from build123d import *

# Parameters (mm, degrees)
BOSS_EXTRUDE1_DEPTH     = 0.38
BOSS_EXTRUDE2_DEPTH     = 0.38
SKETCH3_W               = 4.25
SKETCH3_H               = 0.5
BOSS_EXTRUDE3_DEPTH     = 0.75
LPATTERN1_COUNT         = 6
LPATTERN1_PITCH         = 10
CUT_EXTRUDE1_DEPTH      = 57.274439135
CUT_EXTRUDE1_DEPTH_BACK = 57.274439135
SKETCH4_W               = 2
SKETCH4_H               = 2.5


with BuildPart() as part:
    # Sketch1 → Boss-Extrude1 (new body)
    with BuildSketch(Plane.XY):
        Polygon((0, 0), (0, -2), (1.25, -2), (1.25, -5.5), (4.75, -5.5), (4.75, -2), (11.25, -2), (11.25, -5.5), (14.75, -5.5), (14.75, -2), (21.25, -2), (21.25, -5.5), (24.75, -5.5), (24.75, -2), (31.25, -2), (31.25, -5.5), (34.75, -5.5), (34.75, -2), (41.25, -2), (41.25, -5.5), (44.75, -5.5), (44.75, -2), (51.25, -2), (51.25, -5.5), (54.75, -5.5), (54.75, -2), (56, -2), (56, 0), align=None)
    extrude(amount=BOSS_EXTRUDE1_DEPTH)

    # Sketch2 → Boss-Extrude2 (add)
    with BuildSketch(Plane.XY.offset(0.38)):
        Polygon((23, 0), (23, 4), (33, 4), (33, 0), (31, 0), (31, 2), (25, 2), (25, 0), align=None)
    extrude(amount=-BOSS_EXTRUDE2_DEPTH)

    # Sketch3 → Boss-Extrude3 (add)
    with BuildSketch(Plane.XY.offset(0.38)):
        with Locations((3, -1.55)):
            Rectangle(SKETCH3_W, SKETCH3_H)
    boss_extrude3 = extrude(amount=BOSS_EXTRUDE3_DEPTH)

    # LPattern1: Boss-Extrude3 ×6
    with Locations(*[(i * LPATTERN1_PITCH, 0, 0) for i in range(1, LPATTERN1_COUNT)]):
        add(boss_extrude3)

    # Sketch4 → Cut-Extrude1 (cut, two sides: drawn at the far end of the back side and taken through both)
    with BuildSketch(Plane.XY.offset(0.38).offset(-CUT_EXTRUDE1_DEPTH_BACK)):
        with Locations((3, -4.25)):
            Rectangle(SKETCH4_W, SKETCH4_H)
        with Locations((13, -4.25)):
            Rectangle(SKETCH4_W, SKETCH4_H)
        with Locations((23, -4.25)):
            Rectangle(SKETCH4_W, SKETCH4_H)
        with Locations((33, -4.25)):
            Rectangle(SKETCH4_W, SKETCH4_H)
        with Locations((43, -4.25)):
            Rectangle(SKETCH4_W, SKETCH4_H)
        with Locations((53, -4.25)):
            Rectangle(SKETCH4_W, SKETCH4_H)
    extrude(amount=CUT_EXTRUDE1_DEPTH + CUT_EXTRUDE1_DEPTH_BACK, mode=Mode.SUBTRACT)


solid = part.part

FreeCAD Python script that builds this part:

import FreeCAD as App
import Part
import Sketcher
from FreeCAD import Vector
Q = App.Units.Quantity

doc = App.newDocument("Part")
body = doc.addObject("PartDesign::Body", "Body")

sketch1 = body.newObject("Sketcher::SketchObject", "Sketch")
sketch1.AttachmentSupport = (doc.getObject("XY_Plane"), [""])
sketch1.MapMode = "FlatFace"
sketch1.addGeometry(Part.LineSegment(Vector(0, 0, 0), Vector(0, -2, 0)), False)
sketch1.addGeometry(Part.LineSegment(Vector(0, -2, 0), Vector(1.2, -2, 0)), False)
sketch1.addGeometry(Part.LineSegment(Vector(1.2, -2, 0), Vector(1.2, -5.5, 0)), False)
sketch1.addGeometry(Part.LineSegment(Vector(1.2, -5.5, 0), Vector(4.8, -5.5, 0)), False)
sketch1.addGeometry(Part.LineSegment(Vector(4.8, -5.5, 0), Vector(4.8, -2, 0)), False)
sketch1.addGeometry(Part.LineSegment(Vector(4.8, -2, 0), Vector(11.2, -2, 0)), False)
sketch1.addGeometry(Part.LineSegment(Vector(11.2, -2, 0), Vector(11.2, -5.5, 0)), False)
sketch1.addGeometry(Part.LineSegment(Vector(11.2, -5.5, 0), Vector(14.8, -5.5, 0)), False)
sketch1.addGeometry(Part.LineSegment(Vector(14.8, -5.5, 0), Vector(14.8, -2, 0)), False)
sketch1.addGeometry(Part.LineSegment(Vector(14.8, -2, 0), Vector(21.2, -2, 0)), False)
sketch1.addGeometry(Part.LineSegment(Vector(21.2, -2, 0), Vector(21.2, -5.5, 0)), False)
sketch1.addGeometry(Part.LineSegment(Vector(21.2, -5.5, 0), Vector(24.8, -5.5, 0)), False)
sketch1.addGeometry(Part.LineSegment(Vector(24.8, -5.5, 0), Vector(24.8, -2, 0)), False)
sketch1.addGeometry(Part.LineSegment(Vector(24.8, -2, 0), Vector(31.2, -2, 0)), False)
sketch1.addGeometry(Part.LineSegment(Vector(31.2, -2, 0), Vector(31.2, -5.5, 0)), False)
sketch1.addGeometry(Part.LineSegment(Vector(31.2, -5.5, 0), Vector(34.8, -5.5, 0)), False)
sketch1.addGeometry(Part.LineSegment(Vector(34.8, -5.5, 0), Vector(34.8, -2, 0)), False)
sketch1.addGeometry(Part.LineSegment(Vector(34.8, -2, 0), Vector(41.2, -2, 0)), False)
sketch1.addGeometry(Part.LineSegment(Vector(41.2, -2, 0), Vector(41.2, -5.5, 0)), False)
sketch1.addGeometry(Part.LineSegment(Vector(41.2, -5.5, 0), Vector(44.8, -5.5, 0)), False)
sketch1.addGeometry(Part.LineSegment(Vector(44.8, -5.5, 0), Vector(44.8, -2, 0)), False)
sketch1.addGeometry(Part.LineSegment(Vector(44.8, -2, 0), Vector(51.2, -2, 0)), False)
sketch1.addGeometry(Part.LineSegment(Vector(51.2, -2, 0), Vector(51.2, -5.5, 0)), False)
sketch1.addGeometry(Part.LineSegment(Vector(51.2, -5.5, 0), Vector(54.8, -5.5, 0)), False)
sketch1.addGeometry(Part.LineSegment(Vector(54.8, -5.5, 0), Vector(54.8, -2, 0)), False)
sketch1.addGeometry(Part.LineSegment(Vector(54.8, -2, 0), Vector(56, -2, 0)), False)
sketch1.addGeometry(Part.LineSegment(Vector(56, -2, 0), Vector(56, 0, 0)), False)
sketch1.addGeometry(Part.LineSegment(Vector(56, 0, 0), Vector(0, 0, 0)), False)
sketch1.addConstraint(Sketcher.Constraint("Coincident", 0, 2, 1, 1))
sketch1.addConstraint(Sketcher.Constraint("Coincident", 1, 2, 2, 1))
sketch1.addConstraint(Sketcher.Constraint("Coincident", 2, 2, 3, 1))
sketch1.addConstraint(Sketcher.Constraint("Coincident", 3, 2, 4, 1))
sketch1.addConstraint(Sketcher.Constraint("Coincident", 4, 2, 5, 1))
sketch1.addConstraint(Sketcher.Constraint("Coincident", 5, 2, 6, 1))
sketch1.addConstraint(Sketcher.Constraint("Coincident", 6, 2, 7, 1))
sketch1.addConstraint(Sketcher.Constraint("Coincident", 7, 2, 8, 1))
sketch1.addConstraint(Sketcher.Constraint("Coincident", 8, 2, 9, 1))
sketch1.addConstraint(Sketcher.Constraint("Coincident", 9, 2, 10, 1))
sketch1.addConstraint(Sketcher.Constraint("Coincident", 10, 2, 11, 1))
sketch1.addConstraint(Sketcher.Constraint("Coincident", 11, 2, 12, 1))
sketch1.addConstraint(Sketcher.Constraint("Coincident", 12, 2, 13, 1))
sketch1.addConstraint(Sketcher.Constraint("Coincident", 13, 2, 14, 1))
sketch1.addConstraint(Sketcher.Constraint("Coincident", 14, 2, 15, 1))
sketch1.addConstraint(Sketcher.Constraint("Coincident", 15, 2, 16, 1))
sketch1.addConstraint(Sketcher.Constraint("Coincident", 16, 2, 17, 1))
sketch1.addConstraint(Sketcher.Constraint("Coincident", 17, 2, 18, 1))
sketch1.addConstraint(Sketcher.Constraint("Coincident", 18, 2, 19, 1))
sketch1.addConstraint(Sketcher.Constraint("Coincident", 19, 2, 20, 1))
sketch1.addConstraint(Sketcher.Constraint("Coincident", 20, 2, 21, 1))
sketch1.addConstraint(Sketcher.Constraint("Coincident", 21, 2, 22, 1))
sketch1.addConstraint(Sketcher.Constraint("Coincident", 22, 2, 23, 1))
sketch1.addConstraint(Sketcher.Constraint("Coincident", 23, 2, 24, 1))
sketch1.addConstraint(Sketcher.Constraint("Coincident", 24, 2, 25, 1))
sketch1.addConstraint(Sketcher.Constraint("Coincident", 25, 2, 26, 1))
sketch1.addConstraint(Sketcher.Constraint("Coincident", 26, 2, 27, 1))
sketch1.addConstraint(Sketcher.Constraint("Coincident", 27, 2, 0, 1))
sketch1.addConstraint(Sketcher.Constraint("Vertical", 0))
sketch1.addConstraint(Sketcher.Constraint("Horizontal", 1))
sketch1.addConstraint(Sketcher.Constraint("Vertical", 2))
sketch1.addConstraint(Sketcher.Constraint("Horizontal", 3))
sketch1.addConstraint(Sketcher.Constraint("Vertical", 4))
sketch1.addConstraint(Sketcher.Constraint("Horizontal", 5))
sketch1.addConstraint(Sketcher.Constraint("Vertical", 6))
sketch1.addConstraint(Sketcher.Constraint("Horizontal", 7))
sketch1.addConstraint(Sketcher.Constraint("Vertical", 8))
sketch1.addConstraint(Sketcher.Constraint("Horizontal", 9))
sketch1.addConstraint(Sketcher.Constraint("Vertical", 10))
sketch1.addConstraint(Sketcher.Constraint("Horizontal", 11))
sketch1.addConstraint(Sketcher.Constraint("Vertical", 12))
sketch1.addConstraint(Sketcher.Constraint("Horizontal", 13))
sketch1.addConstraint(Sketcher.Constraint("Vertical", 14))
sketch1.addConstraint(Sketcher.Constraint("Horizontal", 15))
sketch1.addConstraint(Sketcher.Constraint("Vertical", 16))
sketch1.addConstraint(Sketcher.Constraint("Horizontal", 17))
sketch1.addConstraint(Sketcher.Constraint("Vertical", 18))
sketch1.addConstraint(Sketcher.Constraint("Horizontal", 19))
sketch1.addConstraint(Sketcher.Constraint("Vertical", 20))
sketch1.addConstraint(Sketcher.Constraint("Horizontal", 21))
sketch1.addConstraint(Sketcher.Constraint("Vertical", 22))
sketch1.addConstraint(Sketcher.Constraint("Horizontal", 23))
sketch1.addConstraint(Sketcher.Constraint("Vertical", 24))
sketch1.addConstraint(Sketcher.Constraint("Horizontal", 25))
sketch1.addConstraint(Sketcher.Constraint("Vertical", 26))
sketch1.addConstraint(Sketcher.Constraint("Horizontal", 27))
sketch1.addConstraint(Sketcher.Constraint("Coincident", 27, 2, -1, 1))
sketch1.addConstraint(Sketcher.Constraint("Horizontal", 1, 2, 4, 2))
sketch1.addConstraint(Sketcher.Constraint("Horizontal", 3, 2, 6, 2))
sketch1.addConstraint(Sketcher.Constraint("Horizontal", 5, 2, 8, 2))
sketch1.addConstraint(Sketcher.Constraint("Horizontal", 7, 2, 10, 2))
sketch1.addConstraint(Sketcher.Constraint("Horizontal", 9, 2, 12, 2))
sketch1.addConstraint(Sketcher.Constraint("Horizontal", 11, 2, 14, 2))
sketch1.addConstraint(Sketcher.Constraint("Horizontal", 13, 2, 16, 2))
sketch1.addConstraint(Sketcher.Constraint("Horizontal", 15, 2, 18, 2))
sketch1.addConstraint(Sketcher.Constraint("Horizontal", 17, 2, 20, 2))
sketch1.addConstraint(Sketcher.Constraint("Horizontal", 19, 2, 22, 2))
sketch1.addConstraint(Sketcher.Constraint("Horizontal", 21, 2, 24, 2))
sketch1.addConstraint(Sketcher.Constraint("Equal", 3, 7))
sketch1.addConstraint(Sketcher.Constraint("Equal", 5, 9))
sketch1.addConstraint(Sketcher.Constraint("Equal", 7, 11))
sketch1.addConstraint(Sketcher.Constraint("Equal", 9, 13))
sketch1.addConstraint(Sketcher.Constraint("Equal", 11, 15))
sketch1.addConstraint(Sketcher.Constraint("Equal", 13, 17))
sketch1.addConstraint(Sketcher.Constraint("Equal", 15, 19))
sketch1.addConstraint(Sketcher.Constraint("Equal", 17, 21))
sketch1.addConstraint(Sketcher.Constraint("Equal", 19, 23))
sketch1.addConstraint(Sketcher.Constraint("Equal", 1, 25))
sketch1.addConstraint(Sketcher.Constraint("Equal", 23, 2))
sketch1.addConstraint(Sketcher.Constraint("DistanceX", 27, 2, 27, 1, Q("56 mm")))
sketch1.addConstraint(Sketcher.Constraint("DistanceY", 0, 2, 0, 1, Q("2 mm")))
sketch1.addConstraint(Sketcher.Constraint("DistanceX", 3, 1, 3, 2, Q("3.5 mm")))
sketch1.addConstraint(Sketcher.Constraint("DistanceX", 5, 1, 5, 2, Q("6.5 mm")))
pad1 = body.newObject("PartDesign::Pad", "Pad")
pad1.Profile = sketch1
pad1.Length = 0.38

sketch2 = body.newObject("Sketcher::SketchObject", "Sketch001")
sketch2.AttachmentSupport = (doc.getObject("XY_Plane"), [""])
sketch2.MapMode = "FlatFace"
sketch2.AttachmentOffset = App.Placement(Vector(0, 0, 0.38), App.Rotation())
sketch2.addGeometry(Part.LineSegment(Vector(23, 4, 0), Vector(23, 0, 0)), False)
sketch2.addGeometry(Part.LineSegment(Vector(23, 0, 0), Vector(25, 0, 0)), False)
sketch2.addGeometry(Part.LineSegment(Vector(25, 0, 0), Vector(25, 2, 0)), False)
sketch2.addGeometry(Part.LineSegment(Vector(25, 2, 0), Vector(31, 2, 0)), False)
sketch2.addGeometry(Part.LineSegment(Vector(31, 2, 0), Vector(31, 0, 0)), False)
sketch2.addGeometry(Part.LineSegment(Vector(31, 0, 0), Vector(33, 0, 0)), False)
sketch2.addGeometry(Part.LineSegment(Vector(33, 0, 0), Vector(33, 4, 0)), False)
sketch2.addGeometry(Part.LineSegment(Vector(33, 4, 0), Vector(23, 4, 0)), False)
sketch2.addConstraint(Sketcher.Constraint("Coincident", 0, 2, 1, 1))
sketch2.addConstraint(Sketcher.Constraint("Coincident", 1, 2, 2, 1))
sketch2.addConstraint(Sketcher.Constraint("Coincident", 2, 2, 3, 1))
sketch2.addConstraint(Sketcher.Constraint("Coincident", 3, 2, 4, 1))
sketch2.addConstraint(Sketcher.Constraint("Coincident", 4, 2, 5, 1))
sketch2.addConstraint(Sketcher.Constraint("Coincident", 5, 2, 6, 1))
sketch2.addConstraint(Sketcher.Constraint("Coincident", 6, 2, 7, 1))
sketch2.addConstraint(Sketcher.Constraint("Coincident", 7, 2, 0, 1))
sketch2.addConstraint(Sketcher.Constraint("Vertical", 0))
sketch2.addConstraint(Sketcher.Constraint("Horizontal", 1))
sketch2.addConstraint(Sketcher.Constraint("Vertical", 2))
sketch2.addConstraint(Sketcher.Constraint("Horizontal", 3))
sketch2.addConstraint(Sketcher.Constraint("Vertical", 4))
sketch2.addConstraint(Sketcher.Constraint("Horizontal", 5))
sketch2.addConstraint(Sketcher.Constraint("Vertical", 6))
sketch2.addConstraint(Sketcher.Constraint("Horizontal", 7))
sketch2.addConstraint(Sketcher.Constraint("PointOnObject", 0, 2, -1))
sketch2.addConstraint(Sketcher.Constraint("PointOnObject", 4, 2, -1))
sketch2.addConstraint(Sketcher.Constraint("Equal", 1, 5))
sketch2.addConstraint(Sketcher.Constraint("Equal", 5, 2))
sketch2.addConstraint(Sketcher.Constraint("DistanceX", 1, 1, 1, 2, Q("2 mm")))
sketch2.addConstraint(Sketcher.Constraint("DistanceX", 3, 1, 3, 2, Q("6 mm")))
sketch2.addConstraint(Sketcher.Constraint("DistanceY", 0, 2, 0, 1, Q("4 mm")))
sketch2.addConstraint(Sketcher.Constraint("DistanceX", -1, 1, 0, 2, Q("23 mm")))
pad2 = body.newObject("PartDesign::Pad", "Pad001")
pad2.Profile = sketch2
pad2.Length = 0.38
pad2.Reversed = True

sketch3 = body.newObject("Sketcher::SketchObject", "Sketch002")
sketch3.AttachmentSupport = (doc.getObject("XY_Plane"), [""])
sketch3.MapMode = "FlatFace"
sketch3.AttachmentOffset = App.Placement(Vector(0, 0, 0.38), App.Rotation())
sketch3.addGeometry(Part.LineSegment(Vector(0.9, -1.3, 0), Vector(0.9, -1.8, 0)), False)
sketch3.addGeometry(Part.LineSegment(Vector(0.9, -1.8, 0), Vector(5.1, -1.8, 0)), False)
sketch3.addGeometry(Part.LineSegment(Vector(5.1, -1.8, 0), Vector(5.1, -1.3, 0)), False)
sketch3.addGeometry(Part.LineSegment(Vector(5.1, -1.3, 0), Vector(0.9, -1.3, 0)), False)
sketch3.addConstraint(Sketcher.Constraint("Coincident", 0, 2, 1, 1))
sketch3.addConstraint(Sketcher.Constraint("Coincident", 1, 2, 2, 1))
sketch3.addConstraint(Sketcher.Constraint("Coincident", 2, 2, 3, 1))
sketch3.addConstraint(Sketcher.Constraint("Coincident", 3, 2, 0, 1))
sketch3.addConstraint(Sketcher.Constraint("Vertical", 0))
sketch3.addConstraint(Sketcher.Constraint("Horizontal", 1))
sketch3.addConstraint(Sketcher.Constraint("Vertical", 2))
sketch3.addConstraint(Sketcher.Constraint("Horizontal", 3))
sketch3.addConstraint(Sketcher.Constraint("DistanceY", 0, 2, 0, 1, Q("0.5 mm")))
sketch3.addConstraint(Sketcher.Constraint("DistanceX", 1, 1, 1, 2, Q("4.25 mm")))
sketch3.addConstraint(Sketcher.Constraint("DistanceY", 0, 2, -1, 1, Q("1.8 mm")))
sketch3.addConstraint(Sketcher.Constraint("DistanceX", -1, 1, 0, 2, Q("0.875 mm")))
pad3 = body.newObject("PartDesign::Pad", "Pad002")
pad3.Profile = sketch3
pad3.Length = 0.75
doc.recompute()

linearpattern = body.newObject("PartDesign::LinearPattern", "LinearPattern")
linearpattern.Originals = [pad3]
linearpattern.Direction = (doc.getObject("X_Axis"), [""])
linearpattern.Mode = "offset"
linearpattern.Offset = 10
linearpattern.Occurrences = 6
body.Tip = linearpattern

sketch4 = body.newObject("Sketcher::SketchObject", "Sketch003")
sketch4.AttachmentSupport = (doc.getObject("XY_Plane"), [""])
sketch4.MapMode = "FlatFace"
sketch4.AttachmentOffset = App.Placement(Vector(0, 0, 0.38), App.Rotation())
sketch4.addGeometry(Part.LineSegment(Vector(2, -3, 0), Vector(2, -5.5, 0)), False)
sketch4.addGeometry(Part.LineSegment(Vector(2, -5.5, 0), Vector(4, -5.5, 0)), False)
sketch4.addGeometry(Part.LineSegment(Vector(4, -5.5, 0), Vector(4, -3, 0)), False)
sketch4.addGeometry(Part.LineSegment(Vector(4, -3, 0), Vector(2, -3, 0)), False)
sketch4.addGeometry(Part.LineSegment(Vector(12, -3, 0), Vector(12, -5.5, 0)), False)
sketch4.addGeometry(Part.LineSegment(Vector(12, -5.5, 0), Vector(14, -5.5, 0)), False)
sketch4.addGeometry(Part.LineSegment(Vector(14, -5.5, 0), Vector(14, -3, 0)), False)
sketch4.addGeometry(Part.LineSegment(Vector(14, -3, 0), Vector(12, -3, 0)), False)
sketch4.addGeometry(Part.LineSegment(Vector(22, -3, 0), Vector(22, -5.5, 0)), False)
sketch4.addGeometry(Part.LineSegment(Vector(22, -5.5, 0), Vector(24, -5.5, 0)), False)
sketch4.addGeometry(Part.LineSegment(Vector(24, -5.5, 0), Vector(24, -3, 0)), False)
sketch4.addGeometry(Part.LineSegment(Vector(24, -3, 0), Vector(22, -3, 0)), False)
sketch4.addGeometry(Part.LineSegment(Vector(32, -3, 0), Vector(32, -5.5, 0)), False)
sketch4.addGeometry(Part.LineSegment(Vector(32, -5.5, 0), Vector(34, -5.5, 0)), False)
sketch4.addGeometry(Part.LineSegment(Vector(34, -5.5, 0), Vector(34, -3, 0)), False)
sketch4.addGeometry(Part.LineSegment(Vector(34, -3, 0), Vector(32, -3, 0)), False)
sketch4.addGeometry(Part.LineSegment(Vector(42, -3, 0), Vector(42, -5.5, 0)), False)
sketch4.addGeometry(Part.LineSegment(Vector(42, -5.5, 0), Vector(44, -5.5, 0)), False)
sketch4.addGeometry(Part.LineSegment(Vector(44, -5.5, 0), Vector(44, -3, 0)), False)
sketch4.addGeometry(Part.LineSegment(Vector(44, -3, 0), Vector(42, -3, 0)), False)
sketch4.addGeometry(Part.LineSegment(Vector(52, -3, 0), Vector(52, -5.5, 0)), False)
sketch4.addGeometry(Part.LineSegment(Vector(52, -5.5, 0), Vector(54, -5.5, 0)), False)
sketch4.addGeometry(Part.LineSegment(Vector(54, -5.5, 0), Vector(54, -3, 0)), False)
sketch4.addGeometry(Part.LineSegment(Vector(54, -3, 0), Vector(52, -3, 0)), False)
sketch4.addConstraint(Sketcher.Constraint("Coincident", 0, 2, 1, 1))
sketch4.addConstraint(Sketcher.Constraint("Coincident", 1, 2, 2, 1))
sketch4.addConstraint(Sketcher.Constraint("Coincident", 2, 2, 3, 1))
sketch4.addConstraint(Sketcher.Constraint("Coincident", 3, 2, 0, 1))
sketch4.addConstraint(Sketcher.Constraint("Coincident", 4, 2, 5, 1))
sketch4.addConstraint(Sketcher.Constraint("Coincident", 5, 2, 6, 1))
sketch4.addConstraint(Sketcher.Constraint("Coincident", 6, 2, 7, 1))
sketch4.addConstraint(Sketcher.Constraint("Coincident", 7, 2, 4, 1))
sketch4.addConstraint(Sketcher.Constraint("Coincident", 8, 2, 9, 1))
sketch4.addConstraint(Sketcher.Constraint("Coincident", 9, 2, 10, 1))
sketch4.addConstraint(Sketcher.Constraint("Coincident", 10, 2, 11, 1))
sketch4.addConstraint(Sketcher.Constraint("Coincident", 11, 2, 8, 1))
sketch4.addConstraint(Sketcher.Constraint("Coincident", 12, 2, 13, 1))
sketch4.addConstraint(Sketcher.Constraint("Coincident", 13, 2, 14, 1))
sketch4.addConstraint(Sketcher.Constraint("Coincident", 14, 2, 15, 1))
sketch4.addConstraint(Sketcher.Constraint("Coincident", 15, 2, 12, 1))
sketch4.addConstraint(Sketcher.Constraint("Coincident", 16, 2, 17, 1))
sketch4.addConstraint(Sketcher.Constraint("Coincident", 17, 2, 18, 1))
sketch4.addConstraint(Sketcher.Constraint("Coincident", 18, 2, 19, 1))
sketch4.addConstraint(Sketcher.Constraint("Coincident", 19, 2, 16, 1))
sketch4.addConstraint(Sketcher.Constraint("Coincident", 20, 2, 21, 1))
sketch4.addConstraint(Sketcher.Constraint("Coincident", 21, 2, 22, 1))
sketch4.addConstraint(Sketcher.Constraint("Coincident", 22, 2, 23, 1))
sketch4.addConstraint(Sketcher.Constraint("Coincident", 23, 2, 20, 1))
sketch4.addConstraint(Sketcher.Constraint("Vertical", 0))
sketch4.addConstraint(Sketcher.Constraint("Horizontal", 1))
sketch4.addConstraint(Sketcher.Constraint("Vertical", 2))
sketch4.addConstraint(Sketcher.Constraint("Horizontal", 3))
sketch4.addConstraint(Sketcher.Constraint("Vertical", 4))
sketch4.addConstraint(Sketcher.Constraint("Horizontal", 5))
sketch4.addConstraint(Sketcher.Constraint("Vertical", 6))
sketch4.addConstraint(Sketcher.Constraint("Horizontal", 7))
sketch4.addConstraint(Sketcher.Constraint("Vertical", 8))
sketch4.addConstraint(Sketcher.Constraint("Horizontal", 9))
sketch4.addConstraint(Sketcher.Constraint("Vertical", 10))
sketch4.addConstraint(Sketcher.Constraint("Horizontal", 11))
sketch4.addConstraint(Sketcher.Constraint("Vertical", 12))
sketch4.addConstraint(Sketcher.Constraint("Horizontal", 13))
sketch4.addConstraint(Sketcher.Constraint("Vertical", 14))
sketch4.addConstraint(Sketcher.Constraint("Horizontal", 15))
sketch4.addConstraint(Sketcher.Constraint("Vertical", 16))
sketch4.addConstraint(Sketcher.Constraint("Horizontal", 17))
sketch4.addConstraint(Sketcher.Constraint("Vertical", 18))
sketch4.addConstraint(Sketcher.Constraint("Horizontal", 19))
sketch4.addConstraint(Sketcher.Constraint("Vertical", 20))
sketch4.addConstraint(Sketcher.Constraint("Horizontal", 21))
sketch4.addConstraint(Sketcher.Constraint("Vertical", 22))
sketch4.addConstraint(Sketcher.Constraint("Horizontal", 23))
sketch4.addConstraint(Sketcher.Constraint("Horizontal", 1, 2, 4, 2))
sketch4.addConstraint(Sketcher.Constraint("Horizontal", 3, 2, 6, 2))
sketch4.addConstraint(Sketcher.Constraint("Horizontal", 5, 2, 8, 2))
sketch4.addConstraint(Sketcher.Constraint("Horizontal", 7, 2, 10, 2))
sketch4.addConstraint(Sketcher.Constraint("Horizontal", 9, 2, 12, 2))
sketch4.addConstraint(Sketcher.Constraint("Horizontal", 11, 2, 14, 2))
sketch4.addConstraint(Sketcher.Constraint("Horizontal", 13, 2, 16, 2))
sketch4.addConstraint(Sketcher.Constraint("Horizontal", 15, 2, 18, 2))
sketch4.addConstraint(Sketcher.Constraint("Horizontal", 17, 2, 20, 2))
sketch4.addConstraint(Sketcher.Constraint("Horizontal", 19, 2, 22, 2))
sketch4.addConstraint(Sketcher.Constraint("Equal", 3, 5))
sketch4.addConstraint(Sketcher.Constraint("Equal", 7, 9))
sketch4.addConstraint(Sketcher.Constraint("Equal", 11, 13))
sketch4.addConstraint(Sketcher.Constraint("Equal", 15, 17))
sketch4.addConstraint(Sketcher.Constraint("Equal", 19, 21))
sketch4.addConstraint(Sketcher.Constraint("DistanceX", 1, 1, 1, 2, Q("2 mm")))
sketch4.addConstraint(Sketcher.Constraint("DistanceY", 0, 2, 0, 1, Q("2.5 mm")))
sketch4.addConstraint(Sketcher.Constraint("DistanceX", -1, 1, 0, 2, Q("2 mm")))
sketch4.addConstraint(Sketcher.Constraint("DistanceY", 2, 2, -1, 1, Q("3 mm")))
sketch4.addConstraint(Sketcher.Constraint("DistanceX", -1, 1, 4, 2, Q("12 mm")))
sketch4.addConstraint(Sketcher.Constraint("DistanceX", -1, 1, 8, 2, Q("22 mm")))
sketch4.addConstraint(Sketcher.Constraint("DistanceX", -1, 1, 12, 2, Q("32 mm")))
sketch4.addConstraint(Sketcher.Constraint("DistanceX", -1, 1, 16, 2, Q("42 mm")))
sketch4.addConstraint(Sketcher.Constraint("DistanceX", -1, 1, 20, 2, Q("52 mm")))
pocket1 = body.newObject("PartDesign::Pocket", "Pocket")
pocket1.Profile = sketch4
pocket1.Type = "ThroughAll"
pocket1.Midplane = True

doc.recompute()
